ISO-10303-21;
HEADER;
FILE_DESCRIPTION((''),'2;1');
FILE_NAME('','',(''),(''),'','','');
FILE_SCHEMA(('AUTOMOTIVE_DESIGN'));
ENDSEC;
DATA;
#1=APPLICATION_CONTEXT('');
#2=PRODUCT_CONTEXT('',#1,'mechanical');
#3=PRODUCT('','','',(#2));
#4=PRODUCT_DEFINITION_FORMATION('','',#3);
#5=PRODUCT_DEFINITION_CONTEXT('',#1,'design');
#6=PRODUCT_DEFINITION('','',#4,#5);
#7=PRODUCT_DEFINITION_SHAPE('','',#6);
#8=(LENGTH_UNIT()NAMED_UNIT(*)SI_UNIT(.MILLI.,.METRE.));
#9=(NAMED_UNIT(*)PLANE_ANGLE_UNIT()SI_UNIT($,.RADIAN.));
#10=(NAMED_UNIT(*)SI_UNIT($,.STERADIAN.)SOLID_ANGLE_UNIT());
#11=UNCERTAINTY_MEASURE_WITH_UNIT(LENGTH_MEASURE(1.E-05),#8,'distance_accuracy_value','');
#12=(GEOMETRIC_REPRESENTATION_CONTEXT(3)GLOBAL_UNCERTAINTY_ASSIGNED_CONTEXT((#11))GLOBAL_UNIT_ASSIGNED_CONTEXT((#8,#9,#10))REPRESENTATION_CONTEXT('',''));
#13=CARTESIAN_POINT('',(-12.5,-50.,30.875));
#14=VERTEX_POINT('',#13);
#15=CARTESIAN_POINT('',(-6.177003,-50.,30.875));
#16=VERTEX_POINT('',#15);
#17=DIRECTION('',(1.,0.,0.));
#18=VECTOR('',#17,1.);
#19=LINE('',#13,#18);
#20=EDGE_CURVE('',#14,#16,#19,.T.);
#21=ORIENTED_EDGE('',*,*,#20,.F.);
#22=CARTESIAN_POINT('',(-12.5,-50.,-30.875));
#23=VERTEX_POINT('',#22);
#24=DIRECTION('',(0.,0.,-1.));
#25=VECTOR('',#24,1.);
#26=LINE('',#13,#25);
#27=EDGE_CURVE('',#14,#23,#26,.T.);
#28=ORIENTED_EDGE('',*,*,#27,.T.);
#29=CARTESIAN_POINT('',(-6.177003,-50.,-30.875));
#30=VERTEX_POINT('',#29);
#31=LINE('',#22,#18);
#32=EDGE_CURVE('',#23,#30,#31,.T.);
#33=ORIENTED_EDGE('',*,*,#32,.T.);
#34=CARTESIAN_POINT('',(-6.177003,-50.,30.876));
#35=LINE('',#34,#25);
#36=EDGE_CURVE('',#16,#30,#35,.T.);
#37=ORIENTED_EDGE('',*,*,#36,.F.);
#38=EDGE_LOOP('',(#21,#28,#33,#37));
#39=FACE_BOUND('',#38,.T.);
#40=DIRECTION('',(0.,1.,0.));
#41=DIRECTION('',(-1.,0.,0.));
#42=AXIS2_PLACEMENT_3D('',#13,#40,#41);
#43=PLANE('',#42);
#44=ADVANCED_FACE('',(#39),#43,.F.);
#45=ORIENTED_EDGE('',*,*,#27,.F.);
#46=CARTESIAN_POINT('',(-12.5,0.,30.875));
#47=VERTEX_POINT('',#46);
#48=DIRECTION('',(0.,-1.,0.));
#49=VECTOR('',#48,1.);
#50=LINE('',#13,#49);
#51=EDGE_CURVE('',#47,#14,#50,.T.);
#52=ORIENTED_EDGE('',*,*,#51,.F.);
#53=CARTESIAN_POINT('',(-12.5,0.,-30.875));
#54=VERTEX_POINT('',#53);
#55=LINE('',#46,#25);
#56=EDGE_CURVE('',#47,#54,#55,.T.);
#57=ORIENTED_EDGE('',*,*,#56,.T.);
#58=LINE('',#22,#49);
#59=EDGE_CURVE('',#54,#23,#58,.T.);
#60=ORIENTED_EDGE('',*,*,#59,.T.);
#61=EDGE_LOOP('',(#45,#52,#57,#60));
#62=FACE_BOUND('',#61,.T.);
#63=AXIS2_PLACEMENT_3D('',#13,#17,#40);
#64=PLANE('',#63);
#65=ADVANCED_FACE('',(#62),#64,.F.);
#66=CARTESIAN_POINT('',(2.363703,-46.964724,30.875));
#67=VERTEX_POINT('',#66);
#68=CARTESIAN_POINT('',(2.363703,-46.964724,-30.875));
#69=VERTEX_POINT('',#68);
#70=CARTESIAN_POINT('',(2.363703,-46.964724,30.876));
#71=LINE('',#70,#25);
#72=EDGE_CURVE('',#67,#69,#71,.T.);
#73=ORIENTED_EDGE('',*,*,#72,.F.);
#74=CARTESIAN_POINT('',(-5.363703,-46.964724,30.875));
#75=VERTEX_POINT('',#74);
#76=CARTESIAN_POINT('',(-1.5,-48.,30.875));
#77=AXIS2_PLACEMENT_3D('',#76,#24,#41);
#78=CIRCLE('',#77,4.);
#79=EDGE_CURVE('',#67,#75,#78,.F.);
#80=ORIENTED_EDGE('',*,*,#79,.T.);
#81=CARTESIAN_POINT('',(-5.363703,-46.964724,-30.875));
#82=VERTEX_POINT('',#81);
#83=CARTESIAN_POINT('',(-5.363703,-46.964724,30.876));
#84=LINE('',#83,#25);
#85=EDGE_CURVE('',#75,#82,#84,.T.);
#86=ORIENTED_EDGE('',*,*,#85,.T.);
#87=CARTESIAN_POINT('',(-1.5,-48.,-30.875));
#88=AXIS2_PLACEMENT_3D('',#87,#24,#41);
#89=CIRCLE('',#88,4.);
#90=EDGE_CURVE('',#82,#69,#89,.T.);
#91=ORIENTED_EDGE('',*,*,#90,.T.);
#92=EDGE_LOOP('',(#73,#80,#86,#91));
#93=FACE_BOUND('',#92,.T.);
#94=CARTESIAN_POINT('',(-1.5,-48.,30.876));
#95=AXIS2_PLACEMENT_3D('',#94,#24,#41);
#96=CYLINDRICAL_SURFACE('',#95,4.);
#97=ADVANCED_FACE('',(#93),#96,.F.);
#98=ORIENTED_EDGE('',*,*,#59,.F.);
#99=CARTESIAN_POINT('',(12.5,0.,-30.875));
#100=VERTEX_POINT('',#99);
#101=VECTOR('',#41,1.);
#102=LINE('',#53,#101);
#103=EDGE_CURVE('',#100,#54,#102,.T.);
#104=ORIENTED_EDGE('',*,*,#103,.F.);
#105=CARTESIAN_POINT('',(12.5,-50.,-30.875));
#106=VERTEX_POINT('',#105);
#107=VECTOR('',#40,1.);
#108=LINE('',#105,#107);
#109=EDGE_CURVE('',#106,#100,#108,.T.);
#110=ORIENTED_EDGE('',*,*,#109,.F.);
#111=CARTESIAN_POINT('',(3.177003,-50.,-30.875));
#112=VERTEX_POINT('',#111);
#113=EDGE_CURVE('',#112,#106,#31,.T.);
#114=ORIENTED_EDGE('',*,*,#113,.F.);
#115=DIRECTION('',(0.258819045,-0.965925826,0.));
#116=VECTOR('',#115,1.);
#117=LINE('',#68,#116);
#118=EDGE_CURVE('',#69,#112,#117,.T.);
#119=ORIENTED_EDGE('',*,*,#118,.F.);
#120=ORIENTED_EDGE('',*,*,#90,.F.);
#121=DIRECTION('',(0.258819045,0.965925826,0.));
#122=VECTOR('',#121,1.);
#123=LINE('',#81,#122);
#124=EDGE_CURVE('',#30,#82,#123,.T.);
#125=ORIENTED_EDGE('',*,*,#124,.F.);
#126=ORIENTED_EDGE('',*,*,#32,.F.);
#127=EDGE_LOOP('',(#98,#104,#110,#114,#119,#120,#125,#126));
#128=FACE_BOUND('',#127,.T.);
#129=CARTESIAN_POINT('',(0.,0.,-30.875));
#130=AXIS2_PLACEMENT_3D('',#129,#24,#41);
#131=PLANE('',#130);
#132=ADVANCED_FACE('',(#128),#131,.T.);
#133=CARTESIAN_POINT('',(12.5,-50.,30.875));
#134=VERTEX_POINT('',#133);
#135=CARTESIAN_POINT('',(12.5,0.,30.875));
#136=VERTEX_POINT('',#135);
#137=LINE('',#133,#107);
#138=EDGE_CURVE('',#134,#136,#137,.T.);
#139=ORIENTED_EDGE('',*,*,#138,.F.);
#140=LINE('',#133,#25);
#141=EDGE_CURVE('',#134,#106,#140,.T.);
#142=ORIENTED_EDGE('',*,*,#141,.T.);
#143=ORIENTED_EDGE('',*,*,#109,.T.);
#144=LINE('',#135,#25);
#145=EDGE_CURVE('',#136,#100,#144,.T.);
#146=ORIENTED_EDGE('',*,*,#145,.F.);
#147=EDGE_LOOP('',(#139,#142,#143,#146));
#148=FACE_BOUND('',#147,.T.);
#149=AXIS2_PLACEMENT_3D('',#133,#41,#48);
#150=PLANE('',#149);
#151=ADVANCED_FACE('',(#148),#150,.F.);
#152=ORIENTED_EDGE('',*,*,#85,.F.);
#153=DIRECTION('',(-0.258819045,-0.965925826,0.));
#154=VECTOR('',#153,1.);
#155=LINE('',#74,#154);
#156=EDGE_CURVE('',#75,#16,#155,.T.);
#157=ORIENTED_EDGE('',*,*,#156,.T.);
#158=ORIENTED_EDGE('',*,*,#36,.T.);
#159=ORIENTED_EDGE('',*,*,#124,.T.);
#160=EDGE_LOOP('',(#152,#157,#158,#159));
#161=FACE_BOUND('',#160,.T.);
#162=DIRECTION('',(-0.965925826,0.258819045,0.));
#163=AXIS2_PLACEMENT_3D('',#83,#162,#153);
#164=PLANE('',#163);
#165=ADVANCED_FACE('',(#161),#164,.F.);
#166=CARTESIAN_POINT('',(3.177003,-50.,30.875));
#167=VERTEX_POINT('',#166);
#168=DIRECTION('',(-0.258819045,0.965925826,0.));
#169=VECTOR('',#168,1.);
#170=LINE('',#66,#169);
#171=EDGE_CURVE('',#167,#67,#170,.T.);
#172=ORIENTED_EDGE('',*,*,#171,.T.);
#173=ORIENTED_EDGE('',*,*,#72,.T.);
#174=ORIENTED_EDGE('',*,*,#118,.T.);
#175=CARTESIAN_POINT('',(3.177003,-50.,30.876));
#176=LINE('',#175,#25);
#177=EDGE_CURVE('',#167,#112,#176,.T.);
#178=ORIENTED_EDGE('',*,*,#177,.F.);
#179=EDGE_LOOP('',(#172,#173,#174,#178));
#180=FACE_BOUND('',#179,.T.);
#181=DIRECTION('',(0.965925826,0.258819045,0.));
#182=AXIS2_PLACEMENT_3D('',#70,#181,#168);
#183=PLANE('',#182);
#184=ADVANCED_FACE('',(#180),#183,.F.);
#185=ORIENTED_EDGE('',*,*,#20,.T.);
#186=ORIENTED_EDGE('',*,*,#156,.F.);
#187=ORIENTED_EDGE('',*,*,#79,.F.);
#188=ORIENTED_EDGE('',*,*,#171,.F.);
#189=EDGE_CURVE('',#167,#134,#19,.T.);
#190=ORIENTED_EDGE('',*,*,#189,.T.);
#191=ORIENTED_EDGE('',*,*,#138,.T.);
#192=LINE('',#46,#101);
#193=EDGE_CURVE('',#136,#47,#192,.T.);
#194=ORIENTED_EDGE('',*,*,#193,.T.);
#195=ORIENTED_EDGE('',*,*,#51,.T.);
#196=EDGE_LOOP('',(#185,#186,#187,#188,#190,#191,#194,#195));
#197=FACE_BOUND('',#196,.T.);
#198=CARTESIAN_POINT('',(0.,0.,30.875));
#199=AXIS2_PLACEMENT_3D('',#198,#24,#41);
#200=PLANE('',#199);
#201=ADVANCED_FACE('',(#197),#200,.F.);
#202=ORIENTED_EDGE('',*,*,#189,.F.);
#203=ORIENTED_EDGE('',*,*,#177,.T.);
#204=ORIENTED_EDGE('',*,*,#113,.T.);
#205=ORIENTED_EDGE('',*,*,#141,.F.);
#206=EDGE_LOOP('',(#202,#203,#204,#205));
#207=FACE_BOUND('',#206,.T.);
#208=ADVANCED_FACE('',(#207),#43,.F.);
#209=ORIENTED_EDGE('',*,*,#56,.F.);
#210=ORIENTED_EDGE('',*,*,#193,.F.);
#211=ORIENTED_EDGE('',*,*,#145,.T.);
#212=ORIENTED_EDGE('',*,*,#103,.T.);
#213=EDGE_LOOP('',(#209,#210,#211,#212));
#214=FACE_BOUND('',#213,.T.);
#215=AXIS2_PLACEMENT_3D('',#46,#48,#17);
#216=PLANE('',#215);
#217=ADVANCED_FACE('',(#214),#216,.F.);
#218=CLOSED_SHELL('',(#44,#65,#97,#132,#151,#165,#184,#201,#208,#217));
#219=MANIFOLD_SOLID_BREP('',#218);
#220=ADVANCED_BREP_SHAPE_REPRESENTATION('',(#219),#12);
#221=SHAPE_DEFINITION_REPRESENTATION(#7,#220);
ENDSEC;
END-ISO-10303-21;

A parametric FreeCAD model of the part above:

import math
import FreeCAD as App
import Part
import Sketcher
Q = App.Units.Quantity


def add_polygon(sketch, points):
    """Adds a closed chain of lines whose ends are joined by coincident constraints."""
    first, n = sketch.GeometryCount, len(points)
    for a, b in zip(points, points[1:] + points[:1]):
        sketch.addGeometry(Part.LineSegment(App.Vector(*a, 0), App.Vector(*b, 0)), False)
    for i in range(n):
        sketch.addConstraint(Sketcher.Constraint("Coincident", first + i, 2, first + (i + 1) % n, 1))

doc = App.newDocument("Part")
params = doc.addObject("Spreadsheet::Sheet", "Params")
for row, (alias, value) in enumerate([
    ("sketch1_width", "25 mm"),
    ("sketch1_height", "50 mm"),
    ("pad1_length", "61.75 mm"),
    ("sketch2_radius", "4 mm"),
], start=1):
    params.set(f"A{row}", alias)
    params.set(f"B{row}", "=" + value)
    params.setAlias(f"B{row}", alias)

body = doc.addObject("PartDesign::Body", "Body")

# Sketch on XY plane
sketch1 = doc.addObject("Sketcher::SketchObject", "Sketch")
body.addObject(sketch1)
sketch1.AttachmentSupport = (doc.XY_Plane, [""])
sketch1.MapMode = "FlatFace"
add_polygon(sketch1, [(-12, 0), (-12, -50), (12, -50), (12, 0)])  # lines 0-3
sketch1.addConstraint(Sketcher.Constraint("Vertical", 0))
sketch1.addConstraint(Sketcher.Constraint("Horizontal", 1))
sketch1.addConstraint(Sketcher.Constraint("Vertical", 2))
sketch1.addConstraint(Sketcher.Constraint("Horizontal", 3))
sketch1.addConstraint(Sketcher.Constraint("Symmetric", 2, 2, 3, 2, -1, 1))
sketch1.addConstraint(Sketcher.Constraint("DistanceX", 1, 1, 1, 2, Q("25 mm")))
sketch1.addConstraint(Sketcher.Constraint("DistanceY", 0, 2, 0, 1, Q("50 mm")))
sketch1.setExpression("Constraints[9]", "Params.sketch1_width")
sketch1.setExpression("Constraints[10]", "Params.sketch1_height")
pad1 = doc.addObject("PartDesign::Pad", "Pad")
body.addObject(pad1)
pad1.Profile = sketch1
pad1.setExpression("Length", "Params.pad1_length")
pad1.Midplane = True

# Sketch on XY plane
sketch2 = doc.addObject("Sketcher::SketchObject", "Sketch001")
body.addObject(sketch2)
sketch2.AttachmentSupport = (doc.XY_Plane, [""])
sketch2.MapMode = "FlatFace"
sketch2.AttachmentOffset = App.Placement(App.Vector(0, 0, -30.875), App.Rotation())
sketch2.addGeometry(Part.LineSegment(App.Vector(2.4, -47, 0), App.Vector(3.2, -50, 0)), False)
sketch2.addGeometry(Part.LineSegment(App.Vector(3.2, -50, 0), App.Vector(-6.2, -50, 0)), False)
sketch2.addGeometry(Part.LineSegment(App.Vector(-6.2, -50, 0), App.Vector(-5.4, -47, 0)), False)
sketch2.addGeometry(Part.ArcOfCircle(Part.Circle(App.Vector(-1.5, -48, 0), App.Vector(0, 0, 1), 4), math.radians(15), math.radians(165)), False)
sketch2.addConstraint(Sketcher.Constraint("Coincident", 0, 2, 1, 1))
sketch2.addConstraint(Sketcher.Constraint("Coincident", 1, 2, 2, 1))
sketch2.addConstraint(Sketcher.Constraint("Tangent", 2, 2, 3, 2))
sketch2.addConstraint(Sketcher.Constraint("Tangent", 3, 1, 0, 1))
sketch2.addConstraint(Sketcher.Constraint("Horizontal", 1))
sketch2.addConstraint(Sketcher.Constraint("Horizontal", 2, 2, 3, 1))
sketch2.addConstraint(Sketcher.Constraint("Radius", 3, Q("4 mm")))
sketch2.addConstraint(Sketcher.Constraint("Angle", 0, Q("-75 deg")))
sketch2.addConstraint(Sketcher.Constraint("DistanceY", 3, 3, -1, 1, Q("48 mm")))
sketch2.addConstraint(Sketcher.Constraint("DistanceY", 0, 2, -1, 1, Q("50 mm")))
sketch2.addConstraint(Sketcher.Constraint("DistanceX", 3, 3, -1, 1, Q("1.5 mm")))
sketch2.setExpression("Constraints[6]", "Params.sketch2_radius")
pocket1 = doc.addObject("PartDesign::Pocket", "Pocket")
body.addObject(pocket1)
pocket1.Profile = sketch2
pocket1.Type = "UpToFirst"
pocket1.Reversed = True

doc.recompute()
